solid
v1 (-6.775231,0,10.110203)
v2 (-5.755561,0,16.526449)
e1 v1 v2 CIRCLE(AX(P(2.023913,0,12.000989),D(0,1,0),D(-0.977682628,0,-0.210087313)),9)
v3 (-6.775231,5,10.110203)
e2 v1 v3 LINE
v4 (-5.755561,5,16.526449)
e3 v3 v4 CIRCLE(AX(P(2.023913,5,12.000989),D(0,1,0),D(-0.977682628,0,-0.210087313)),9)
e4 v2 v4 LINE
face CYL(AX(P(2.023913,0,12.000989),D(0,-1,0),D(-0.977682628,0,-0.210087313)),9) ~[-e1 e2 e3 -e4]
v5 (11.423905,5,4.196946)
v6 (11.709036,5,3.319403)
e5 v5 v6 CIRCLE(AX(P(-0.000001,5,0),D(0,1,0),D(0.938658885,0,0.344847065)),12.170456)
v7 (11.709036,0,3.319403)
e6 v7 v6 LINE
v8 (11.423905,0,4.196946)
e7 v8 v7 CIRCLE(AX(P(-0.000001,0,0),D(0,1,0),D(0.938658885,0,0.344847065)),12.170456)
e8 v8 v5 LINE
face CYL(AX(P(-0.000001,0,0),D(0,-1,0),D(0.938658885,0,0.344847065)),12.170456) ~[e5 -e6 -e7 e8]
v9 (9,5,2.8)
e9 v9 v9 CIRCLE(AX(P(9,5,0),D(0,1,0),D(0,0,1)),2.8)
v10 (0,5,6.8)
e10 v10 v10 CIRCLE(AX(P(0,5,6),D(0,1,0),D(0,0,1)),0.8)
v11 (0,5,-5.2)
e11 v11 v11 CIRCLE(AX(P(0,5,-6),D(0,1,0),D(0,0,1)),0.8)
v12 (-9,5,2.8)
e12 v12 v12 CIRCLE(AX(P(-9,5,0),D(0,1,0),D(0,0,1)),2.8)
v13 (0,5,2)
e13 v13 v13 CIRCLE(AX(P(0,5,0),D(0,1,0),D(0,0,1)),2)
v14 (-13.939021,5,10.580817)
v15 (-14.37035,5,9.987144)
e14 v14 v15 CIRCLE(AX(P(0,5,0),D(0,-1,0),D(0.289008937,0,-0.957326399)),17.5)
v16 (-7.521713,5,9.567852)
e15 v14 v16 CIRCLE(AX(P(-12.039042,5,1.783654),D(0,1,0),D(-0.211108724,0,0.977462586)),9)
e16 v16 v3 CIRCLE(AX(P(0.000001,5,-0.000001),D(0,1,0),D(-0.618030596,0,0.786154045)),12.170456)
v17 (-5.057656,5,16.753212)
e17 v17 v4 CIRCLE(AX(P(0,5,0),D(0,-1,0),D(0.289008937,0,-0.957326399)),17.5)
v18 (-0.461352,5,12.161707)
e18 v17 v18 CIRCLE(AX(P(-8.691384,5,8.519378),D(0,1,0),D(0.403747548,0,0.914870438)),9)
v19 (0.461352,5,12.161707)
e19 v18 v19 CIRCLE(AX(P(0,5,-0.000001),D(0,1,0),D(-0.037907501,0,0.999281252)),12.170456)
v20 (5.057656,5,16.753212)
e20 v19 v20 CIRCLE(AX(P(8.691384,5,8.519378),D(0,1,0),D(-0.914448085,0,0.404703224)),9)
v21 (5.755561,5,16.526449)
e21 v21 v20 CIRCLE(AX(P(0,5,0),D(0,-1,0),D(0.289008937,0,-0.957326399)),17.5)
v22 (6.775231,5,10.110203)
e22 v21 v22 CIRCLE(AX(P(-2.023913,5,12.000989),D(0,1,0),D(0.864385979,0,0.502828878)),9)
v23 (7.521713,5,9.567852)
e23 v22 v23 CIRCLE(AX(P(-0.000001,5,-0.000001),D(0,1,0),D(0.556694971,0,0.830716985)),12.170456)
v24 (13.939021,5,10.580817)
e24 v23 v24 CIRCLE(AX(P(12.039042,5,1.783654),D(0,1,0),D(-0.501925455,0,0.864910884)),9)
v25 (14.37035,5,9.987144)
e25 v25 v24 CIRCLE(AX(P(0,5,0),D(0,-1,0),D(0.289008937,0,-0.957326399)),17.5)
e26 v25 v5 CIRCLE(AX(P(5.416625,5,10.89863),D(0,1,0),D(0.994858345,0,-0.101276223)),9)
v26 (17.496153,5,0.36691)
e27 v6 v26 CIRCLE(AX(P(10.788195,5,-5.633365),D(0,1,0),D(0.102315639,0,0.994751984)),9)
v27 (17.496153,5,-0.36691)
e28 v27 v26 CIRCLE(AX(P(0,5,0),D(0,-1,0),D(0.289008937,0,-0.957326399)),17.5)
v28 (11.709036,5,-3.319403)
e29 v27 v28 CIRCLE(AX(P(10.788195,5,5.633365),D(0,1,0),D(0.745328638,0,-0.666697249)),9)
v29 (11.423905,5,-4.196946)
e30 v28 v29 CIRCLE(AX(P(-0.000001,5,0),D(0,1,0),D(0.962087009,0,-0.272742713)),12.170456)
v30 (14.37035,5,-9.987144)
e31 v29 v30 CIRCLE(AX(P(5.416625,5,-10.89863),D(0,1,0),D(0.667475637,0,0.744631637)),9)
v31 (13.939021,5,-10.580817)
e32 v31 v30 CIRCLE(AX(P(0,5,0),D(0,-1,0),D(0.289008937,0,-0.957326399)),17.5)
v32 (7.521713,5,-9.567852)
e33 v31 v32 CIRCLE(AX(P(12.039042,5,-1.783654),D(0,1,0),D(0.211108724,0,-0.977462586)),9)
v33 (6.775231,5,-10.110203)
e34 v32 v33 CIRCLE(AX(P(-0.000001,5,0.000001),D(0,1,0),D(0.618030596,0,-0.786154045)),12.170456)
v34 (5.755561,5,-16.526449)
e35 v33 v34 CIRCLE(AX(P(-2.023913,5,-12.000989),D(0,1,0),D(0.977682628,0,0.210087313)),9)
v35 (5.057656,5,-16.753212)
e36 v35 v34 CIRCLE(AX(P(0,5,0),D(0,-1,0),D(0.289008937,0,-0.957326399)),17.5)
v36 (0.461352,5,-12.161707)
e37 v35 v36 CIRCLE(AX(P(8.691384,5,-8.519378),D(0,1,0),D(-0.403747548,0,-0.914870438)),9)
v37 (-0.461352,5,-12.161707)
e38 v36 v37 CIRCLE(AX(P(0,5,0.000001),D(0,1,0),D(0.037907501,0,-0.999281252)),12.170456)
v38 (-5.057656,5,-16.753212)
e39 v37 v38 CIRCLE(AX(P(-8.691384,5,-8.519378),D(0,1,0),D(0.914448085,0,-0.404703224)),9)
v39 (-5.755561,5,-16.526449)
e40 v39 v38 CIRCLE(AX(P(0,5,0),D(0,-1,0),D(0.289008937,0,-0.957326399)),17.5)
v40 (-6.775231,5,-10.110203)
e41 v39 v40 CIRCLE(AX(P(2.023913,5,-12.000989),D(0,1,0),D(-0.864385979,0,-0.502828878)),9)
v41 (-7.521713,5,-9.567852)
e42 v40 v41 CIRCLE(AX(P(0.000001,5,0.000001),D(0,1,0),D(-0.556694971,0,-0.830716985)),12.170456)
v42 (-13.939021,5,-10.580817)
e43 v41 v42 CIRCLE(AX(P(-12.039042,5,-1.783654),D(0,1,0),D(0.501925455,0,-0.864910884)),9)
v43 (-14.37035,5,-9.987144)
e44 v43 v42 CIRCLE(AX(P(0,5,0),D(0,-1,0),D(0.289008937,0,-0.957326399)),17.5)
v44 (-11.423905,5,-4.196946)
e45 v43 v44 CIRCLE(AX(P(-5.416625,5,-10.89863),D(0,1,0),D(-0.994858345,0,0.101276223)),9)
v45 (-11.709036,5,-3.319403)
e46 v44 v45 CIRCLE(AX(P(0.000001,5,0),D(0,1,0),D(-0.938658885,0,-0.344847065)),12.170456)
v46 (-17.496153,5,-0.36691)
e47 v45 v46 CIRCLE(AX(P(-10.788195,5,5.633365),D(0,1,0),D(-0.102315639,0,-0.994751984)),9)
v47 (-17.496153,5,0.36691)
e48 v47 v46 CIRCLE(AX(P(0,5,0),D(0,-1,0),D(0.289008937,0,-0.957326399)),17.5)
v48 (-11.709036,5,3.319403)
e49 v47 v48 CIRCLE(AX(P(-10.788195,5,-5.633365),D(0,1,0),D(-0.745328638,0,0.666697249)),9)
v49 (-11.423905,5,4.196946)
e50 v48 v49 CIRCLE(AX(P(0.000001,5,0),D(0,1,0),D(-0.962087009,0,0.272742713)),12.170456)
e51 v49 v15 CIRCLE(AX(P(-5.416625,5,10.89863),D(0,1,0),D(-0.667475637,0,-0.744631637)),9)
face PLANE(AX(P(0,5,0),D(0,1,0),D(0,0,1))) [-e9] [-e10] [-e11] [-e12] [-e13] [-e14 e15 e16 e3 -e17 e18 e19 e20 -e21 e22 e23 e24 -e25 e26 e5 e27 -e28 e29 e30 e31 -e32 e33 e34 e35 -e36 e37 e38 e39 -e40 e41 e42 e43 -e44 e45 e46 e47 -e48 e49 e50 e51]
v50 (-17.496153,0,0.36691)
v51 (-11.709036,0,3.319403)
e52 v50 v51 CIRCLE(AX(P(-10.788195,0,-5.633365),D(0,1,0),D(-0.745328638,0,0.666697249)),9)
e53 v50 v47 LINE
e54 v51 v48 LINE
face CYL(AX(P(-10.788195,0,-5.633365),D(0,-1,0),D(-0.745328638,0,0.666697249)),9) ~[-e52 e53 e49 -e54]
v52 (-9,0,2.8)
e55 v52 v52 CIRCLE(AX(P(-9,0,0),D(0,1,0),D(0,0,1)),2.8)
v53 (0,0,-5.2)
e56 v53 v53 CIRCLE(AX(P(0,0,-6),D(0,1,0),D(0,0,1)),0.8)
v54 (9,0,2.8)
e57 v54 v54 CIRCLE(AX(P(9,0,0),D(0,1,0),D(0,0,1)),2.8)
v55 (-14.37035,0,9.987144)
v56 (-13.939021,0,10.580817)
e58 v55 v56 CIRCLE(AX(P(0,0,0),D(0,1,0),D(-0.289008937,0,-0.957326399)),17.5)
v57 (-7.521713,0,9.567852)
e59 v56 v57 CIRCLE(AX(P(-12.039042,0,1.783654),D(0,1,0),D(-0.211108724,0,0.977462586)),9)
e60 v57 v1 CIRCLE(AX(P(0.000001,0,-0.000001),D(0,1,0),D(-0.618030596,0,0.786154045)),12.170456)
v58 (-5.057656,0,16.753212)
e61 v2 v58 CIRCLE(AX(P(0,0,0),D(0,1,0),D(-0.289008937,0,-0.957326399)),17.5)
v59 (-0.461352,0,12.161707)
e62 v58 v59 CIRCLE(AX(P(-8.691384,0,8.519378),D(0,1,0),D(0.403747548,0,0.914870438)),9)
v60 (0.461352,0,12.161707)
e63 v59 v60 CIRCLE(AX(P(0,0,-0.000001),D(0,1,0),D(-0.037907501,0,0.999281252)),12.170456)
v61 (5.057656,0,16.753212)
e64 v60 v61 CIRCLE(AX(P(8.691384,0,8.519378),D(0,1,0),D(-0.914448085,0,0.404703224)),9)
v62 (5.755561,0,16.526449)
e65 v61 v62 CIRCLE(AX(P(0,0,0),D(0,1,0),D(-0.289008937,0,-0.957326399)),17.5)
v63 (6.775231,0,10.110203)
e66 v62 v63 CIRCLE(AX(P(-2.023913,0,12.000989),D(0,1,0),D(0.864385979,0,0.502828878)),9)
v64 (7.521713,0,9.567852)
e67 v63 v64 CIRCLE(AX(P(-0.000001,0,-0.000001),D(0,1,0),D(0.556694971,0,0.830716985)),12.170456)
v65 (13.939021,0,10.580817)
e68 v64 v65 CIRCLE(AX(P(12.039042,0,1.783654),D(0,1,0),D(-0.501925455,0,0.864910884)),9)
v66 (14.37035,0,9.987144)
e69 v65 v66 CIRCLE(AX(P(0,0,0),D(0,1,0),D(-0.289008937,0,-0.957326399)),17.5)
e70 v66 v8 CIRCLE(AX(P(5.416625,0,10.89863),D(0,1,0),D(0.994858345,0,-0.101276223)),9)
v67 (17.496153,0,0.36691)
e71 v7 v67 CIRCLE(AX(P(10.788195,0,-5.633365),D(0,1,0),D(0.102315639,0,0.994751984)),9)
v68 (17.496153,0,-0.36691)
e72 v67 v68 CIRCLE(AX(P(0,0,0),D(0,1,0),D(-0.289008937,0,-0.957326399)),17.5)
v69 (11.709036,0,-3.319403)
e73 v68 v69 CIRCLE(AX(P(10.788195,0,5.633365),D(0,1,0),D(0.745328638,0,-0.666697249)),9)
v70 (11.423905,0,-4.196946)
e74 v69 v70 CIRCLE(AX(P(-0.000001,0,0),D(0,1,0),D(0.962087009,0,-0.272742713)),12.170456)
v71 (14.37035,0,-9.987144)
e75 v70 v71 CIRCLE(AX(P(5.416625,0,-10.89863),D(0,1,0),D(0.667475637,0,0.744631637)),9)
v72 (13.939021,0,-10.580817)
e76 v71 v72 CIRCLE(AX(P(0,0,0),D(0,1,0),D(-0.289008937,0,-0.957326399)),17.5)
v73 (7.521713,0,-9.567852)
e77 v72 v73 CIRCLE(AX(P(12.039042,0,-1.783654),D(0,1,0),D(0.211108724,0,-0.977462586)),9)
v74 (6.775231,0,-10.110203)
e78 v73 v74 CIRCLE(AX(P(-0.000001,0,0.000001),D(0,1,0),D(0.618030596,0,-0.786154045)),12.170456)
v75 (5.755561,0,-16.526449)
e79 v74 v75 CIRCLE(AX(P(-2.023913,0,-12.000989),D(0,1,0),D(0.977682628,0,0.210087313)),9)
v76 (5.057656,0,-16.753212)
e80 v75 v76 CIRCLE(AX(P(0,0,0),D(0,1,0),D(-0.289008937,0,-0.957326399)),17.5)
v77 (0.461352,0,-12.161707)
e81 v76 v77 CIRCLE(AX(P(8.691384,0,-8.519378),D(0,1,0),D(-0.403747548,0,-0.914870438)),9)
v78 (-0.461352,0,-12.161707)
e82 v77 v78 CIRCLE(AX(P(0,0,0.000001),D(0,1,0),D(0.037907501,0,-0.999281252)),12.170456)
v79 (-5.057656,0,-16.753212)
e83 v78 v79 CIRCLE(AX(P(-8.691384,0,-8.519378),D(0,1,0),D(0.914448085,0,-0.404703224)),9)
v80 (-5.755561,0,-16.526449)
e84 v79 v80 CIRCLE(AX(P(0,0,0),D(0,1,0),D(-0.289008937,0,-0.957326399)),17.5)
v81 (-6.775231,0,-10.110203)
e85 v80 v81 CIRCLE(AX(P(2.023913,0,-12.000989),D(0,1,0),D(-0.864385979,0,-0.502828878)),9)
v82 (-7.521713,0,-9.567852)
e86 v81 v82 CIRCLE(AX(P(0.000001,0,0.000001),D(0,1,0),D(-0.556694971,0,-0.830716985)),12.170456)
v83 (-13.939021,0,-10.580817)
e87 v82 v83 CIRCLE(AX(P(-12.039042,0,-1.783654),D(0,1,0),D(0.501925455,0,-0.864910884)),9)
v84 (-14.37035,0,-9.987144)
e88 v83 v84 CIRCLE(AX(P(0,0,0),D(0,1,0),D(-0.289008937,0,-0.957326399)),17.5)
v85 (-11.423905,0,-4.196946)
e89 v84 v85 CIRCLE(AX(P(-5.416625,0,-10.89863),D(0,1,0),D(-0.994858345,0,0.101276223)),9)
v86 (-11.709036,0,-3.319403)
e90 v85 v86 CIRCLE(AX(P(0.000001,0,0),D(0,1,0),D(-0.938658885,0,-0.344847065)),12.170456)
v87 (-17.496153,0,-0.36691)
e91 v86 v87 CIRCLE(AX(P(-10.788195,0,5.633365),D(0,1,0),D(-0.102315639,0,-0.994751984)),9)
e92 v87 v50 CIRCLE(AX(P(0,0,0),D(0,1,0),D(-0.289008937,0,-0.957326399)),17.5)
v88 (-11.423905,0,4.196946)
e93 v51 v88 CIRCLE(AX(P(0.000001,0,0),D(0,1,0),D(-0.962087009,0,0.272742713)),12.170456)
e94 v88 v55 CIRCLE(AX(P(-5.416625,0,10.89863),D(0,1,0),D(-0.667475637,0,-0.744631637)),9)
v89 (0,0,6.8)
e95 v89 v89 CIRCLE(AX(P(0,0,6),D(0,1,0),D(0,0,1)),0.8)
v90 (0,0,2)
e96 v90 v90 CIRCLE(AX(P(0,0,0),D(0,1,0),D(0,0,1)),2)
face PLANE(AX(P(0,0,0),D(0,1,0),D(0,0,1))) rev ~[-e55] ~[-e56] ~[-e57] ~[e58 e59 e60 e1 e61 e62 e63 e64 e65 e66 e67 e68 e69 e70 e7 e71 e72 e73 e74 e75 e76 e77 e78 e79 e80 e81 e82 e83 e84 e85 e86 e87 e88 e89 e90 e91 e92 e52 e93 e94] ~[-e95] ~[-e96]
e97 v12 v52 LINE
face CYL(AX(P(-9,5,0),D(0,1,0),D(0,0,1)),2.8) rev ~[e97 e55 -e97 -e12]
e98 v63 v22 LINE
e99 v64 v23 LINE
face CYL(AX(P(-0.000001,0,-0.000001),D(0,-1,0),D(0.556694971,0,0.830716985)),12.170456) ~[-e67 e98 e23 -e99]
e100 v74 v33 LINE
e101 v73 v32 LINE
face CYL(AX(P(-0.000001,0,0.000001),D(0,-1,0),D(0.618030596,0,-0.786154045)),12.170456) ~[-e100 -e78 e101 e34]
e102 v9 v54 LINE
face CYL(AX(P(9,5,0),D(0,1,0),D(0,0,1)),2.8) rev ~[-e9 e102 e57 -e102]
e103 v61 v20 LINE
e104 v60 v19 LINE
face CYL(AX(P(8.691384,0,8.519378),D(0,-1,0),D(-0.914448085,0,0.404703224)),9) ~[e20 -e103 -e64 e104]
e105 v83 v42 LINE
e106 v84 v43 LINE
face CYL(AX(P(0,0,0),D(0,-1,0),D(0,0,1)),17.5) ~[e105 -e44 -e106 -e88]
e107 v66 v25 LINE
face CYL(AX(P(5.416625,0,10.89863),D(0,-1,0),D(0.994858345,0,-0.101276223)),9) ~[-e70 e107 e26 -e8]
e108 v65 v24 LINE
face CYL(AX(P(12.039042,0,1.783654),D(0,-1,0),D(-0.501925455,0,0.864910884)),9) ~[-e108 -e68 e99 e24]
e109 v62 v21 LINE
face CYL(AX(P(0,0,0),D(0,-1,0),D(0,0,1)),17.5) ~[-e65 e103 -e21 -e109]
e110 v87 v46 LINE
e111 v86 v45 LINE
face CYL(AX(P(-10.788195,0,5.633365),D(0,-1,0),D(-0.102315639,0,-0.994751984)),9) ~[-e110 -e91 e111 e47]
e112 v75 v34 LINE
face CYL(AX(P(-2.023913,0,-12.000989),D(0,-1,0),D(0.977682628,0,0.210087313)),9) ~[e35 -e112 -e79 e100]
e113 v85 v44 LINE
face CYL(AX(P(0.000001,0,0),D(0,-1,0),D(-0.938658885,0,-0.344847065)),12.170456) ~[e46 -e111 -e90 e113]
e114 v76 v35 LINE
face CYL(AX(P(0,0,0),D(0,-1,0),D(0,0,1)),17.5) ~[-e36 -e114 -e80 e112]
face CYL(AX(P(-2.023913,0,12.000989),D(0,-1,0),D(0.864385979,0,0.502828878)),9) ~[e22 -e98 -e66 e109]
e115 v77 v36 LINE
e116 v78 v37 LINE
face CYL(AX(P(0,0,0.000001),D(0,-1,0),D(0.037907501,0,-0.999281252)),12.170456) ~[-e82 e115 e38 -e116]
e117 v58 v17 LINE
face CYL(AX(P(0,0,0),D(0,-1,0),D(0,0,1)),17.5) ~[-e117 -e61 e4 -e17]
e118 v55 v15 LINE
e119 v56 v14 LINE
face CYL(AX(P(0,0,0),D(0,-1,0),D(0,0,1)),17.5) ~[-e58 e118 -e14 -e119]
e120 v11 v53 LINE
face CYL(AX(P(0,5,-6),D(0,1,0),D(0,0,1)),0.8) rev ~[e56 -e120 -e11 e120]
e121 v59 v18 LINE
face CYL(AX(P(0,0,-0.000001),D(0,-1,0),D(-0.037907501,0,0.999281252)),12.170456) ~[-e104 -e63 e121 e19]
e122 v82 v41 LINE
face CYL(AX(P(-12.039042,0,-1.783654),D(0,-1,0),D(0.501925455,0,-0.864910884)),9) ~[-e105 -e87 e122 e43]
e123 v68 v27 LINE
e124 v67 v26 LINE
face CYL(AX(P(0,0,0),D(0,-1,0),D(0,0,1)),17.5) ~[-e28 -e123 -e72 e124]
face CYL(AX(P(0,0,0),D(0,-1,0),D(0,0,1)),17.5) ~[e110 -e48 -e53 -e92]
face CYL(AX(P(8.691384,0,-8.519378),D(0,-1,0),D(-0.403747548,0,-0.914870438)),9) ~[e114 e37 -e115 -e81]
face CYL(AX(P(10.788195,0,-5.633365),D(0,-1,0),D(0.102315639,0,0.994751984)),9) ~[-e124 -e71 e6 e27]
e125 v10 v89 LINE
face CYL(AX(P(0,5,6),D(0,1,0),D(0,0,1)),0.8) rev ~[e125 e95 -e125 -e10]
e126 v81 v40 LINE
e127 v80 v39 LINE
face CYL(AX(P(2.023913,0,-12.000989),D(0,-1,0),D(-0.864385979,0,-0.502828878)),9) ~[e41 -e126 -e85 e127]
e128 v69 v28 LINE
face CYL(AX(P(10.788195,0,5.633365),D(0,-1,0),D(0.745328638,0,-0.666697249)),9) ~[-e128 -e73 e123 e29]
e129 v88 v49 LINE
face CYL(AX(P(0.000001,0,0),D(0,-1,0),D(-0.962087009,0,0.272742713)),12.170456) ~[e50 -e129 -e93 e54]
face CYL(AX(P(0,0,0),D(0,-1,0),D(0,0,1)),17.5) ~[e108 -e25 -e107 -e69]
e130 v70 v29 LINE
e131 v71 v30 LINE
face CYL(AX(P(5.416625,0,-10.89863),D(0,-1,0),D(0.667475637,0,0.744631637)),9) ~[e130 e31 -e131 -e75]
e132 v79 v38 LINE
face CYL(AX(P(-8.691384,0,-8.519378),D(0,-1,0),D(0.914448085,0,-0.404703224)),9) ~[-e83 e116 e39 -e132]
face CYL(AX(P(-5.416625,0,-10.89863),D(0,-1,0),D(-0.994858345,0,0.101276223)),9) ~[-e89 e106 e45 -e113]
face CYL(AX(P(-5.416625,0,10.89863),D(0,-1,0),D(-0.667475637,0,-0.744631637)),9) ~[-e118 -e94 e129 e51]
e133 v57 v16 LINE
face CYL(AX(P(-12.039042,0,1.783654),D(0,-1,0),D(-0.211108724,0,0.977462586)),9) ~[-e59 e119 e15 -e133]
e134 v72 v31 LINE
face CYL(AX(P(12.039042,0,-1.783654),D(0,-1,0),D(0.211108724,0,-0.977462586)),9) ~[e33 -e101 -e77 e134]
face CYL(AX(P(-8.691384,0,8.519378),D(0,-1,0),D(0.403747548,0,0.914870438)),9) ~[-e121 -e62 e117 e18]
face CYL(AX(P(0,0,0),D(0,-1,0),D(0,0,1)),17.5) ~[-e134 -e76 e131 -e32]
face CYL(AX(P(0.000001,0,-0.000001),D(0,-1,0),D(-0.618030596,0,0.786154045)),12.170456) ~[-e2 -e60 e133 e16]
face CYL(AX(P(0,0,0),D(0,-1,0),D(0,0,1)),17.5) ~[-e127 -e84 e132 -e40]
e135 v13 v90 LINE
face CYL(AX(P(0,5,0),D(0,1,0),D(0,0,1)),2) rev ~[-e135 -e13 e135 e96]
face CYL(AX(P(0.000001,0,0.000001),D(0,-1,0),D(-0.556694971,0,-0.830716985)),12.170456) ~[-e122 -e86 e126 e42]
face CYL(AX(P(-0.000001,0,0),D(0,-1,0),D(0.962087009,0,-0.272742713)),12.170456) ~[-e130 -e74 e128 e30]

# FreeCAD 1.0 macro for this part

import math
import FreeCAD as App
import Part
import Sketcher
from FreeCAD import Vector
Q = App.Units.Quantity

doc = App.newDocument("Part")
body = doc.addObject("PartDesign::Body", "Body")

# Sketch on XZ plane
sketch1 = body.newObject("Sketcher::SketchObject", "Sketch")
sketch1.AttachmentSupport = (doc.getObject("XZ_Plane"), [""])
sketch1.MapMode = "FlatFace"
sketch1.addGeometry(Part.Circle(Vector(0, 0, 0), Vector(0, 0, 1), 18), False)
sketch1.addConstraint([
    Sketcher.Constraint("Coincident", 0, 3, -1, 1),
    Sketcher.Constraint("Diameter", 0, Q("35 mm")),
])
pad1 = body.newObject("PartDesign::Pad", "Pad")
pad1.Profile = sketch1
pad1.Length = 5
pad1.Reversed = True

# Sketch on XZ plane
sketch2 = body.newObject("Sketcher::SketchObject", "Sketch001")
sketch2.AttachmentSupport = (doc.getObject("XZ_Plane"), [""])
sketch2.MapMode = "FlatFace"
sketch2.addGeometry([
    Part.ArcOfCircle(Part.Circle(Vector(-8.7, -8.5, 0), Vector(0, 0, 1), 9), math.radians(-66), math.radians(-24)),
    Part.ArcOfCircle(Part.Circle(Vector(0, 0, 0), Vector(0, 0, 1), 12.2), math.radians(-92.17), math.radians(-87.83)),
    Part.ArcOfCircle(Part.Circle(Vector(8.7, -8.5, 0), Vector(0, 0, 1), 9), math.radians(-156), math.radians(-114)),
    Part.ArcOfCircle(Part.Circle(Vector(0, 0, 0), Vector(0, 0, 1), 17.5), math.radians(-107), math.radians(-73)),
], False)
sketch2.addConstraint([
    Sketcher.Constraint("Coincident", 0, 2, 1, 1),
    Sketcher.Constraint("Coincident", 1, 2, 2, 1),
    Sketcher.Constraint("Coincident", 2, 2, 3, 2),
    Sketcher.Constraint("Coincident", 3, 1, 0, 1),
    Sketcher.Constraint("Coincident", 1, 3, -1, 1),
    Sketcher.Constraint("Coincident", 3, 3, -1, 1),
    Sketcher.Constraint("Equal", 0, 2),
    Sketcher.Constraint("Symmetric", 0, 3, 2, 3, -2),
    Sketcher.Constraint("Radius", 0, Q("9 mm")),
    Sketcher.Constraint("Radius", 3, Q("17.5 mm")),
    Sketcher.Constraint("Radius", 1, Q("12.170456 mm")),
    Sketcher.Constraint("DistanceY", 0, 3, -1, 1, Q("8.519378 mm")),
    Sketcher.Constraint("DistanceX", 0, 2, -1, 1, Q("0.461352 mm")),
])
pocket1 = body.newObject("PartDesign::Pocket", "Pocket")
pocket1.Profile = sketch2
pocket1.Length = 5
doc.recompute()

polarpattern = body.newObject("PartDesign::PolarPattern", "PolarPattern")
polarpattern.Originals = [pocket1]
polarpattern.Axis = (doc.getObject("Y_Axis"), [""])
polarpattern.Angle = 360
polarpattern.Occurrences = 10
body.Tip = polarpattern

# Sketch on XZ plane
sketch3 = body.newObject("Sketcher::SketchObject", "Sketch002")
sketch3.AttachmentSupport = (doc.getObject("XZ_Plane"), [""])
sketch3.MapMode = "FlatFace"
sketch3.AttachmentOffset = App.Placement(Vector(0, 0, -5), App.Rotation())
sketch3.addGeometry(Part.Circle(Vector(0, 0, 0), Vector(0, 0, 1), 2), False)
sketch3.addConstraint([
    Sketcher.Constraint("Coincident", 0, 3, -1, 1),
    Sketcher.Constraint("Diameter", 0, Q("4 mm")),
])
pocket2 = body.newObject("PartDesign::Pocket", "Pocket001")
pocket2.Profile = sketch3
pocket2.Length = 5
pocket2.Reversed = True

# Sketch on XZ plane
sketch4 = body.newObject("Sketcher::SketchObject", "Sketch003")
sketch4.AttachmentSupport = (doc.getObject("XZ_Plane"), [""])
sketch4.MapMode = "FlatFace"
sketch4.AttachmentOffset = App.Placement(Vector(0, 0, -5), App.Rotation())
sketch4.addGeometry([
    Part.Circle(Vector(0, -6, 0), Vector(0, 0, 1), 0.8),
    Part.Circle(Vector(0, 6, 0), Vector(0, 0, 1), 0.8),
    Part.Circle(Vector(-9, 0, 0), Vector(0, 0, 1), 2.8),
    Part.Circle(Vector(9, 0, 0), Vector(0, 0, 1), 2.8),
], False)
sketch4.addConstraint([
    Sketcher.Constraint("Equal", 0, 1),
    Sketcher.Constraint("Equal", 2, 3),
    Sketcher.Constraint("Symmetric", 0, 3, 1, 3, -1, 1),
    Sketcher.Constraint("Symmetric", 2, 3, 3, 3, -1, 1),
    Sketcher.Constraint("PointOnObject", 0, 3, -2),
    Sketcher.Constraint("PointOnObject", 2, 3, -1),
    Sketcher.Constraint("Diameter", 0, Q("1.6 mm")),
    Sketcher.Constraint("Diameter", 2, Q("5.6 mm")),
    Sketcher.Constraint("DistanceY", 0, 3, -1, 1, Q("6 mm")),
    Sketcher.Constraint("DistanceX", 2, 3, -1, 1, Q("9 mm")),
])
pocket3 = body.newObject("PartDesign::Pocket", "Pocket002")
pocket3.Profile = sketch4
pocket3.Length = 5
pocket3.Reversed = True

doc.recompute()
